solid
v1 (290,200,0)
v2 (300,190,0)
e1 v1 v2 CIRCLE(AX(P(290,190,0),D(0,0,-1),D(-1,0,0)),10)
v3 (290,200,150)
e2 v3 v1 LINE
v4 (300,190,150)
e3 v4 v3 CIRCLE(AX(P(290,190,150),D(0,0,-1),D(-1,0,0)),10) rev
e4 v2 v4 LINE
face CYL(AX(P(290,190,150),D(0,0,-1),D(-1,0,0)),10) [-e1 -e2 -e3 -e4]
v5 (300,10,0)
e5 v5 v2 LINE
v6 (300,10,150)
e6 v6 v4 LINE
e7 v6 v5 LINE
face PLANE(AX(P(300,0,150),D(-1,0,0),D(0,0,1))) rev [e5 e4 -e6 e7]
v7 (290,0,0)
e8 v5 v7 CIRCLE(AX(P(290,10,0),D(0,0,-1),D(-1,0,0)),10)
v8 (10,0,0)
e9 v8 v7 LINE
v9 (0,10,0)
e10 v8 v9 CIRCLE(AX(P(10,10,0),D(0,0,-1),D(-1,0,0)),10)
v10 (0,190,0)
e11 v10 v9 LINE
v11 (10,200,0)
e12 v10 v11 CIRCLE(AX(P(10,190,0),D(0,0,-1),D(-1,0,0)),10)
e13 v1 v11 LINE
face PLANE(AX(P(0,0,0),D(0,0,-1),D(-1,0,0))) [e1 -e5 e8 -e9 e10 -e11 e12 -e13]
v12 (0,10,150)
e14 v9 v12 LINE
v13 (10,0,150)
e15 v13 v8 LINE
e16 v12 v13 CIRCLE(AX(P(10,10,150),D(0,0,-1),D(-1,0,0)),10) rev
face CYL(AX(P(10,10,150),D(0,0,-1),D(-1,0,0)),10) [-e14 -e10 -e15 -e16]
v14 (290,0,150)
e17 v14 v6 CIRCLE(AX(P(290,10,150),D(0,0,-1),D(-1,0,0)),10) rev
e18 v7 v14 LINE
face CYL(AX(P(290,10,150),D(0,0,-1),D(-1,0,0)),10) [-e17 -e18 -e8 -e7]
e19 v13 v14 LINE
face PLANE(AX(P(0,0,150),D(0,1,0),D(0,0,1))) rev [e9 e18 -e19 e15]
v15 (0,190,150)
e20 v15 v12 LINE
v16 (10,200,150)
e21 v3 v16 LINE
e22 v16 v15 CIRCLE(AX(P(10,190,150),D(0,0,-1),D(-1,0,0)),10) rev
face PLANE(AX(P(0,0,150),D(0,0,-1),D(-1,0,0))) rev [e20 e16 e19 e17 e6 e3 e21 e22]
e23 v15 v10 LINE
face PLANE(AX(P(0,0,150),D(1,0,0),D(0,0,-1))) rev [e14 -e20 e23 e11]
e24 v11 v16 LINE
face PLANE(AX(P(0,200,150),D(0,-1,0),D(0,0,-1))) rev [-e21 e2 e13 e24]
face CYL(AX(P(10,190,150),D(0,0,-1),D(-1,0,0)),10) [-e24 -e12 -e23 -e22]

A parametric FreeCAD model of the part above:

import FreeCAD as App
import Part
import Sketcher

V = App.Vector
Q = App.Units.Quantity


def edges_at(feature, points):
    """Names of the edges that pass closest to the given points."""
    edges = feature.Shape.Edges
    near = lambda p: min(range(len(edges)), key=lambda i: edges[i].distToShape(Part.Vertex(*p))[0])
    return sorted({f"Edge{near(p) + 1}" for p in points})

doc = App.newDocument("Part")
body = doc.addObject("PartDesign::Body", "Body")

# Sketch on XY plane
sketch1 = body.newObject("Sketcher::SketchObject", "Sketch")
sketch1.AttachmentSupport = (doc.getObject("XY_Plane"), [""])
sketch1.MapMode = "FlatFace"
sketch1.addGeometry(Part.LineSegment(V(0, 200, 0), V(0, 0, 0)), False)
sketch1.addGeometry(Part.LineSegment(V(0, 0, 0), V(300, 0, 0)), False)
sketch1.addGeometry(Part.LineSegment(V(300, 0, 0), V(300, 200, 0)), False)
sketch1.addGeometry(Part.LineSegment(V(300, 200, 0), V(0, 200, 0)), False)
sketch1.addConstraint(Sketcher.Constraint("Coincident", 0, 2, 1, 1))
sketch1.addConstraint(Sketcher.Constraint("Coincident", 1, 2, 2, 1))
sketch1.addConstraint(Sketcher.Constraint("Coincident", 2, 2, 3, 1))
sketch1.addConstraint(Sketcher.Constraint("Coincident", 3, 2, 0, 1))
sketch1.addConstraint(Sketcher.Constraint("Vertical", 0))
sketch1.addConstraint(Sketcher.Constraint("Horizontal", 1))
sketch1.addConstraint(Sketcher.Constraint("Vertical", 2))
sketch1.addConstraint(Sketcher.Constraint("Horizontal", 3))
sketch1.addConstraint(Sketcher.Constraint("Coincident", 0, 2, -1, 1))
sketch1.addConstraint(Sketcher.Constraint("DistanceX", 1, 1, 1, 2, Q("300 mm")))
sketch1.addConstraint(Sketcher.Constraint("DistanceY", 0, 2, 0, 1, Q("200 mm")))
pad1 = body.newObject("PartDesign::Pad", "Pad")
pad1.Profile = sketch1
pad1.Length = 150
doc.recompute()

fillet = body.newObject("PartDesign::Fillet", "Fillet")
fillet.Base = (pad1, edges_at(pad1, [
    (0, 200, 75),
    (300, 200, 75),
    (300, 0, 75),
    (0, 0, 75),
]))
fillet.Radius = 10

doc.recompute()
